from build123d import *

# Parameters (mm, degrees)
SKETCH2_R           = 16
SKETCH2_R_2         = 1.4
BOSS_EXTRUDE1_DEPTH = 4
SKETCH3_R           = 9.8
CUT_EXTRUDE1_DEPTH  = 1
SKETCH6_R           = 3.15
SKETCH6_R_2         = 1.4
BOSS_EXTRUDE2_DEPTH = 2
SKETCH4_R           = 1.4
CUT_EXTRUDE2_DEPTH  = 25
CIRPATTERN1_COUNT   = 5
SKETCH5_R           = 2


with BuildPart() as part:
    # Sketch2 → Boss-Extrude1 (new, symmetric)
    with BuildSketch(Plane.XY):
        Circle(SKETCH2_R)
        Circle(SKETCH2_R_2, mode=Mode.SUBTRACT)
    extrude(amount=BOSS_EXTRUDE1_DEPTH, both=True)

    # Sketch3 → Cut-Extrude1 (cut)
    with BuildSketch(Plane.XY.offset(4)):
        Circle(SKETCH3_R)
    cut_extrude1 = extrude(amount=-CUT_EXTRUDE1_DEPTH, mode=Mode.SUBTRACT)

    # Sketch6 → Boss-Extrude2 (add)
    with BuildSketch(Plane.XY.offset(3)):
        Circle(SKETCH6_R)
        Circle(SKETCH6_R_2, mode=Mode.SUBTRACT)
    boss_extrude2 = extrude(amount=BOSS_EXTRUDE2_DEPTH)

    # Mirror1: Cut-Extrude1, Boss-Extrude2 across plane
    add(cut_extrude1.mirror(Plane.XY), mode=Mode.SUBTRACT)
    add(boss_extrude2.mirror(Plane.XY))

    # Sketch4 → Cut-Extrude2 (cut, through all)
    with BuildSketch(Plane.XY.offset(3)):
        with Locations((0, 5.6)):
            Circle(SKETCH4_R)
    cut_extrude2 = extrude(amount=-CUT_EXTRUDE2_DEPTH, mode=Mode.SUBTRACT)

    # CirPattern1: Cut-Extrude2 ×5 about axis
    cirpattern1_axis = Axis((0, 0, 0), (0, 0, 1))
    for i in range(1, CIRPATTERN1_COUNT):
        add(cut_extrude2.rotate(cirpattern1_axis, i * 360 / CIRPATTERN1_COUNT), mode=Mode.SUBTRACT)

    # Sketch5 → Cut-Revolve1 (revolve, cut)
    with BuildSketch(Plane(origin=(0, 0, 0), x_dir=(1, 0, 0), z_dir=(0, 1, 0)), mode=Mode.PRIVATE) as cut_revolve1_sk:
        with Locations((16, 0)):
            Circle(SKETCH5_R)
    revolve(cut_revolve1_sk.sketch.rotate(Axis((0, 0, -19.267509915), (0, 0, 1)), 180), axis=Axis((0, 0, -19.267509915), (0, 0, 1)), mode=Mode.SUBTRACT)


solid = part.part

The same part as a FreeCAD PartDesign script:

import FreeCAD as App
import Part
import Sketcher

V = App.Vector
Q = App.Units.Quantity

doc = App.newDocument("Part")
body = doc.addObject("PartDesign::Body", "Body")

# Sketch on XY plane
sketch1 = body.newObject("Sketcher::SketchObject", "Sketch")
sketch1.AttachmentSupport = (doc.getObject("XY_Plane"), [""])
sketch1.MapMode = "FlatFace"
sketch1.addGeometry(Part.Circle(V(0, 0, 0), V(0, 0, 1), 16), False)
sketch1.addGeometry(Part.Circle(V(0, 0, 0), V(0, 0, 1), 1.4), False)
sketch1.addConstraint(Sketcher.Constraint("Coincident", 0, 3, -1, 1))
sketch1.addConstraint(Sketcher.Constraint("Coincident", 1, 3, -1, 1))
sketch1.addConstraint(Sketcher.Constraint("Diameter", 0, Q("32 mm")))
sketch1.addConstraint(Sketcher.Constraint("Diameter", 1, Q("2.8 mm")))
pad1 = body.newObject("PartDesign::Pad", "Pad")
pad1.Profile = sketch1
pad1.Length = 8
pad1.Midplane = True

# Sketch on XY plane
sketch2 = body.newObject("Sketcher::SketchObject", "Sketch001")
sketch2.AttachmentSupport = (doc.getObject("XY_Plane"), [""])
sketch2.MapMode = "FlatFace"
sketch2.AttachmentOffset = App.Placement(V(0, 0, 4), App.Rotation())
sketch2.addGeometry(Part.Circle(V(0, 0, 0), V(0, 0, 1), 9.8), False)
sketch2.addConstraint(Sketcher.Constraint("Coincident", 0, 3, -1, 1))
sketch2.addConstraint(Sketcher.Constraint("Diameter", 0, Q("19.6 mm")))
pocket1 = body.newObject("PartDesign::Pocket", "Pocket")
pocket1.Profile = sketch2
pocket1.Length = 1

# Sketch on XY plane
sketch3 = body.newObject("Sketcher::SketchObject", "Sketch002")
sketch3.AttachmentSupport = (doc.getObject("XY_Plane"), [""])
sketch3.MapMode = "FlatFace"
sketch3.AttachmentOffset = App.Placement(V(0, 0, 3), App.Rotation())
sketch3.addGeometry(Part.Circle(V(0, 0, 0), V(0, 0, 1), 3.15), False)
sketch3.addGeometry(Part.Circle(V(0, 0, 0), V(0, 0, 1), 1.4), False)
sketch3.addConstraint(Sketcher.Constraint("Coincident", 0, 3, -1, 1))
sketch3.addConstraint(Sketcher.Constraint("Coincident", 1, 3, -1, 1))
sketch3.addConstraint(Sketcher.Constraint("Diameter", 0, Q("6.3 mm")))
sketch3.addConstraint(Sketcher.Constraint("Diameter", 1, Q("2.8 mm")))
pad2 = body.newObject("PartDesign::Pad", "Pad001")
pad2.Profile = sketch3
pad2.Length = 2
doc.recompute()

mirrored = body.newObject("PartDesign::Mirrored", "Mirrored")
mirrored.Originals = [pocket1, pad2]
mirrored.MirrorPlane = (doc.getObject("XY_Plane"), [""])
body.Tip = mirrored

# Sketch on XY plane
sketch4 = body.newObject("Sketcher::SketchObject", "Sketch003")
sketch4.AttachmentSupport = (doc.getObject("XY_Plane"), [""])
sketch4.MapMode = "FlatFace"
sketch4.AttachmentOffset = App.Placement(V(0, 0, 3), App.Rotation())
sketch4.addGeometry(Part.Circle(V(0, 5.6, 0), V(0, 0, 1), 1.4), False)
sketch4.addConstraint(Sketcher.Constraint("PointOnObject", 0, 3, -2))
sketch4.addConstraint(Sketcher.Constraint("Diameter", 0, Q("2.8 mm")))
sketch4.addConstraint(Sketcher.Constraint("DistanceY", -1, 1, 0, 3, Q("5.6 mm")))
pocket2 = body.newObject("PartDesign::Pocket", "Pocket001")
pocket2.Profile = sketch4
pocket2.Type = "ThroughAll"
doc.recompute()

polarpattern = body.newObject("PartDesign::PolarPattern", "PolarPattern")
polarpattern.Originals = [pocket2]
polarpattern.Axis = (doc.getObject("Z_Axis"), [""])
polarpattern.Angle = 360
polarpattern.Occurrences = 5
body.Tip = polarpattern

# Sketch on XZ plane
sketch5 = body.newObject("Sketcher::SketchObject", "Sketch004")
sketch5.AttachmentSupport = (doc.getObject("XZ_Plane"), [""])
sketch5.MapMode = "FlatFace"
sketch5.addGeometry(Part.Circle(V(16, 0, 0), V(0, 0, 1), 2), False)
sketch5.addConstraint(Sketcher.Constraint("PointOnObject", 0, 3, -1))
sketch5.addConstraint(Sketcher.Constraint("Diameter", 0, Q("4 mm")))
sketch5.addConstraint(Sketcher.Constraint("DistanceX", -1, 1, 0, 3, Q("16 mm")))
groove = body.newObject("PartDesign::Groove", "Groove")
groove.Profile = sketch5
groove.ReferenceAxis = (sketch5, ["V_Axis"])
groove.Angle = 360

doc.recompute()
